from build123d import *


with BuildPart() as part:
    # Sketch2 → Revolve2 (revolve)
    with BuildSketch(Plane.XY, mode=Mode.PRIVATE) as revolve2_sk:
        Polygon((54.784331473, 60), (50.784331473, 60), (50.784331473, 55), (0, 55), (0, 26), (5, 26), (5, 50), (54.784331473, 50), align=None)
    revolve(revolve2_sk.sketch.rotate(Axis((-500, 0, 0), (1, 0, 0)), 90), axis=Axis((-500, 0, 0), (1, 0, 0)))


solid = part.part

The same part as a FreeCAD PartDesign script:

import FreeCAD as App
import Part
import Sketcher

V = App.Vector
Q = App.Units.Quantity

doc = App.newDocument("Part")
body = doc.addObject("PartDesign::Body", "Body")

sketch1 = doc.addObject("Sketcher::SketchObject", "Sketch")
body.addObject(sketch1)
sketch1.AttachmentSupport = (doc.XY_Plane, [""])
sketch1.MapMode = "FlatFace"
sketch1.addGeometry([
    Part.LineSegment(V(54.784331, 60, 0), V(50.784331, 60, 0)),
    Part.LineSegment(V(50.784331, 60, 0), V(50.784331, 55, 0)),
    Part.LineSegment(V(50.784331, 55, 0), V(0, 55, 0)),
    Part.LineSegment(V(0, 55, 0), V(0, 26, 0)),
    Part.LineSegment(V(0, 26, 0), V(5, 26, 0)),
    Part.LineSegment(V(5, 26, 0), V(5, 50, 0)),
    Part.LineSegment(V(5, 50, 0), V(54.784331, 50, 0)),
    Part.LineSegment(V(54.784331, 50, 0), V(54.784331, 60, 0)),
], False)
sketch1.addConstraint([
    Sketcher.Constraint("Coincident", 0, 2, 1, 1),
    Sketcher.Constraint("Coincident", 1, 2, 2, 1),
    Sketcher.Constraint("Coincident", 2, 2, 3, 1),
    Sketcher.Constraint("Coincident", 3, 2, 4, 1),
    Sketcher.Constraint("Coincident", 4, 2, 5, 1),
    Sketcher.Constraint("Coincident", 5, 2, 6, 1),
    Sketcher.Constraint("Coincident", 6, 2, 7, 1),
    Sketcher.Constraint("Coincident", 7, 2, 0, 1),
    Sketcher.Constraint("Horizontal", 0),
    Sketcher.Constraint("Vertical", 1),
    Sketcher.Constraint("Horizontal", 2),
    Sketcher.Constraint("Vertical", 3),
    Sketcher.Constraint("Horizontal", 4),
    Sketcher.Constraint("Vertical", 5),
    Sketcher.Constraint("Horizontal", 6),
    Sketcher.Constraint("Vertical", 7),
    Sketcher.Constraint("PointOnObject", 2, 2, -2),
    Sketcher.Constraint("Equal", 4, 1),
    Sketcher.Constraint("DistanceX", 0, 2, 0, 1, Q("4 mm")),
    Sketcher.Constraint("DistanceX", 4, 1, 4, 2, Q("5 mm")),
    Sketcher.Constraint("DistanceY", 3, 2, 3, 1, Q("29 mm")),
    Sketcher.Constraint("DistanceY", 5, 1, 5, 2, Q("24 mm")),
    Sketcher.Constraint("DistanceY", -1, 1, 0, 2, Q("60 mm")),
    Sketcher.Constraint("DistanceX", 2, 2, 2, 1, Q("50.784331 mm")),
])
revolution = doc.addObject("PartDesign::Revolution", "Revolution")
body.addObject(revolution)
revolution.Profile = sketch1
revolution.ReferenceAxis = (sketch1, ["H_Axis"])
revolution.Angle = 360

doc.recompute()
